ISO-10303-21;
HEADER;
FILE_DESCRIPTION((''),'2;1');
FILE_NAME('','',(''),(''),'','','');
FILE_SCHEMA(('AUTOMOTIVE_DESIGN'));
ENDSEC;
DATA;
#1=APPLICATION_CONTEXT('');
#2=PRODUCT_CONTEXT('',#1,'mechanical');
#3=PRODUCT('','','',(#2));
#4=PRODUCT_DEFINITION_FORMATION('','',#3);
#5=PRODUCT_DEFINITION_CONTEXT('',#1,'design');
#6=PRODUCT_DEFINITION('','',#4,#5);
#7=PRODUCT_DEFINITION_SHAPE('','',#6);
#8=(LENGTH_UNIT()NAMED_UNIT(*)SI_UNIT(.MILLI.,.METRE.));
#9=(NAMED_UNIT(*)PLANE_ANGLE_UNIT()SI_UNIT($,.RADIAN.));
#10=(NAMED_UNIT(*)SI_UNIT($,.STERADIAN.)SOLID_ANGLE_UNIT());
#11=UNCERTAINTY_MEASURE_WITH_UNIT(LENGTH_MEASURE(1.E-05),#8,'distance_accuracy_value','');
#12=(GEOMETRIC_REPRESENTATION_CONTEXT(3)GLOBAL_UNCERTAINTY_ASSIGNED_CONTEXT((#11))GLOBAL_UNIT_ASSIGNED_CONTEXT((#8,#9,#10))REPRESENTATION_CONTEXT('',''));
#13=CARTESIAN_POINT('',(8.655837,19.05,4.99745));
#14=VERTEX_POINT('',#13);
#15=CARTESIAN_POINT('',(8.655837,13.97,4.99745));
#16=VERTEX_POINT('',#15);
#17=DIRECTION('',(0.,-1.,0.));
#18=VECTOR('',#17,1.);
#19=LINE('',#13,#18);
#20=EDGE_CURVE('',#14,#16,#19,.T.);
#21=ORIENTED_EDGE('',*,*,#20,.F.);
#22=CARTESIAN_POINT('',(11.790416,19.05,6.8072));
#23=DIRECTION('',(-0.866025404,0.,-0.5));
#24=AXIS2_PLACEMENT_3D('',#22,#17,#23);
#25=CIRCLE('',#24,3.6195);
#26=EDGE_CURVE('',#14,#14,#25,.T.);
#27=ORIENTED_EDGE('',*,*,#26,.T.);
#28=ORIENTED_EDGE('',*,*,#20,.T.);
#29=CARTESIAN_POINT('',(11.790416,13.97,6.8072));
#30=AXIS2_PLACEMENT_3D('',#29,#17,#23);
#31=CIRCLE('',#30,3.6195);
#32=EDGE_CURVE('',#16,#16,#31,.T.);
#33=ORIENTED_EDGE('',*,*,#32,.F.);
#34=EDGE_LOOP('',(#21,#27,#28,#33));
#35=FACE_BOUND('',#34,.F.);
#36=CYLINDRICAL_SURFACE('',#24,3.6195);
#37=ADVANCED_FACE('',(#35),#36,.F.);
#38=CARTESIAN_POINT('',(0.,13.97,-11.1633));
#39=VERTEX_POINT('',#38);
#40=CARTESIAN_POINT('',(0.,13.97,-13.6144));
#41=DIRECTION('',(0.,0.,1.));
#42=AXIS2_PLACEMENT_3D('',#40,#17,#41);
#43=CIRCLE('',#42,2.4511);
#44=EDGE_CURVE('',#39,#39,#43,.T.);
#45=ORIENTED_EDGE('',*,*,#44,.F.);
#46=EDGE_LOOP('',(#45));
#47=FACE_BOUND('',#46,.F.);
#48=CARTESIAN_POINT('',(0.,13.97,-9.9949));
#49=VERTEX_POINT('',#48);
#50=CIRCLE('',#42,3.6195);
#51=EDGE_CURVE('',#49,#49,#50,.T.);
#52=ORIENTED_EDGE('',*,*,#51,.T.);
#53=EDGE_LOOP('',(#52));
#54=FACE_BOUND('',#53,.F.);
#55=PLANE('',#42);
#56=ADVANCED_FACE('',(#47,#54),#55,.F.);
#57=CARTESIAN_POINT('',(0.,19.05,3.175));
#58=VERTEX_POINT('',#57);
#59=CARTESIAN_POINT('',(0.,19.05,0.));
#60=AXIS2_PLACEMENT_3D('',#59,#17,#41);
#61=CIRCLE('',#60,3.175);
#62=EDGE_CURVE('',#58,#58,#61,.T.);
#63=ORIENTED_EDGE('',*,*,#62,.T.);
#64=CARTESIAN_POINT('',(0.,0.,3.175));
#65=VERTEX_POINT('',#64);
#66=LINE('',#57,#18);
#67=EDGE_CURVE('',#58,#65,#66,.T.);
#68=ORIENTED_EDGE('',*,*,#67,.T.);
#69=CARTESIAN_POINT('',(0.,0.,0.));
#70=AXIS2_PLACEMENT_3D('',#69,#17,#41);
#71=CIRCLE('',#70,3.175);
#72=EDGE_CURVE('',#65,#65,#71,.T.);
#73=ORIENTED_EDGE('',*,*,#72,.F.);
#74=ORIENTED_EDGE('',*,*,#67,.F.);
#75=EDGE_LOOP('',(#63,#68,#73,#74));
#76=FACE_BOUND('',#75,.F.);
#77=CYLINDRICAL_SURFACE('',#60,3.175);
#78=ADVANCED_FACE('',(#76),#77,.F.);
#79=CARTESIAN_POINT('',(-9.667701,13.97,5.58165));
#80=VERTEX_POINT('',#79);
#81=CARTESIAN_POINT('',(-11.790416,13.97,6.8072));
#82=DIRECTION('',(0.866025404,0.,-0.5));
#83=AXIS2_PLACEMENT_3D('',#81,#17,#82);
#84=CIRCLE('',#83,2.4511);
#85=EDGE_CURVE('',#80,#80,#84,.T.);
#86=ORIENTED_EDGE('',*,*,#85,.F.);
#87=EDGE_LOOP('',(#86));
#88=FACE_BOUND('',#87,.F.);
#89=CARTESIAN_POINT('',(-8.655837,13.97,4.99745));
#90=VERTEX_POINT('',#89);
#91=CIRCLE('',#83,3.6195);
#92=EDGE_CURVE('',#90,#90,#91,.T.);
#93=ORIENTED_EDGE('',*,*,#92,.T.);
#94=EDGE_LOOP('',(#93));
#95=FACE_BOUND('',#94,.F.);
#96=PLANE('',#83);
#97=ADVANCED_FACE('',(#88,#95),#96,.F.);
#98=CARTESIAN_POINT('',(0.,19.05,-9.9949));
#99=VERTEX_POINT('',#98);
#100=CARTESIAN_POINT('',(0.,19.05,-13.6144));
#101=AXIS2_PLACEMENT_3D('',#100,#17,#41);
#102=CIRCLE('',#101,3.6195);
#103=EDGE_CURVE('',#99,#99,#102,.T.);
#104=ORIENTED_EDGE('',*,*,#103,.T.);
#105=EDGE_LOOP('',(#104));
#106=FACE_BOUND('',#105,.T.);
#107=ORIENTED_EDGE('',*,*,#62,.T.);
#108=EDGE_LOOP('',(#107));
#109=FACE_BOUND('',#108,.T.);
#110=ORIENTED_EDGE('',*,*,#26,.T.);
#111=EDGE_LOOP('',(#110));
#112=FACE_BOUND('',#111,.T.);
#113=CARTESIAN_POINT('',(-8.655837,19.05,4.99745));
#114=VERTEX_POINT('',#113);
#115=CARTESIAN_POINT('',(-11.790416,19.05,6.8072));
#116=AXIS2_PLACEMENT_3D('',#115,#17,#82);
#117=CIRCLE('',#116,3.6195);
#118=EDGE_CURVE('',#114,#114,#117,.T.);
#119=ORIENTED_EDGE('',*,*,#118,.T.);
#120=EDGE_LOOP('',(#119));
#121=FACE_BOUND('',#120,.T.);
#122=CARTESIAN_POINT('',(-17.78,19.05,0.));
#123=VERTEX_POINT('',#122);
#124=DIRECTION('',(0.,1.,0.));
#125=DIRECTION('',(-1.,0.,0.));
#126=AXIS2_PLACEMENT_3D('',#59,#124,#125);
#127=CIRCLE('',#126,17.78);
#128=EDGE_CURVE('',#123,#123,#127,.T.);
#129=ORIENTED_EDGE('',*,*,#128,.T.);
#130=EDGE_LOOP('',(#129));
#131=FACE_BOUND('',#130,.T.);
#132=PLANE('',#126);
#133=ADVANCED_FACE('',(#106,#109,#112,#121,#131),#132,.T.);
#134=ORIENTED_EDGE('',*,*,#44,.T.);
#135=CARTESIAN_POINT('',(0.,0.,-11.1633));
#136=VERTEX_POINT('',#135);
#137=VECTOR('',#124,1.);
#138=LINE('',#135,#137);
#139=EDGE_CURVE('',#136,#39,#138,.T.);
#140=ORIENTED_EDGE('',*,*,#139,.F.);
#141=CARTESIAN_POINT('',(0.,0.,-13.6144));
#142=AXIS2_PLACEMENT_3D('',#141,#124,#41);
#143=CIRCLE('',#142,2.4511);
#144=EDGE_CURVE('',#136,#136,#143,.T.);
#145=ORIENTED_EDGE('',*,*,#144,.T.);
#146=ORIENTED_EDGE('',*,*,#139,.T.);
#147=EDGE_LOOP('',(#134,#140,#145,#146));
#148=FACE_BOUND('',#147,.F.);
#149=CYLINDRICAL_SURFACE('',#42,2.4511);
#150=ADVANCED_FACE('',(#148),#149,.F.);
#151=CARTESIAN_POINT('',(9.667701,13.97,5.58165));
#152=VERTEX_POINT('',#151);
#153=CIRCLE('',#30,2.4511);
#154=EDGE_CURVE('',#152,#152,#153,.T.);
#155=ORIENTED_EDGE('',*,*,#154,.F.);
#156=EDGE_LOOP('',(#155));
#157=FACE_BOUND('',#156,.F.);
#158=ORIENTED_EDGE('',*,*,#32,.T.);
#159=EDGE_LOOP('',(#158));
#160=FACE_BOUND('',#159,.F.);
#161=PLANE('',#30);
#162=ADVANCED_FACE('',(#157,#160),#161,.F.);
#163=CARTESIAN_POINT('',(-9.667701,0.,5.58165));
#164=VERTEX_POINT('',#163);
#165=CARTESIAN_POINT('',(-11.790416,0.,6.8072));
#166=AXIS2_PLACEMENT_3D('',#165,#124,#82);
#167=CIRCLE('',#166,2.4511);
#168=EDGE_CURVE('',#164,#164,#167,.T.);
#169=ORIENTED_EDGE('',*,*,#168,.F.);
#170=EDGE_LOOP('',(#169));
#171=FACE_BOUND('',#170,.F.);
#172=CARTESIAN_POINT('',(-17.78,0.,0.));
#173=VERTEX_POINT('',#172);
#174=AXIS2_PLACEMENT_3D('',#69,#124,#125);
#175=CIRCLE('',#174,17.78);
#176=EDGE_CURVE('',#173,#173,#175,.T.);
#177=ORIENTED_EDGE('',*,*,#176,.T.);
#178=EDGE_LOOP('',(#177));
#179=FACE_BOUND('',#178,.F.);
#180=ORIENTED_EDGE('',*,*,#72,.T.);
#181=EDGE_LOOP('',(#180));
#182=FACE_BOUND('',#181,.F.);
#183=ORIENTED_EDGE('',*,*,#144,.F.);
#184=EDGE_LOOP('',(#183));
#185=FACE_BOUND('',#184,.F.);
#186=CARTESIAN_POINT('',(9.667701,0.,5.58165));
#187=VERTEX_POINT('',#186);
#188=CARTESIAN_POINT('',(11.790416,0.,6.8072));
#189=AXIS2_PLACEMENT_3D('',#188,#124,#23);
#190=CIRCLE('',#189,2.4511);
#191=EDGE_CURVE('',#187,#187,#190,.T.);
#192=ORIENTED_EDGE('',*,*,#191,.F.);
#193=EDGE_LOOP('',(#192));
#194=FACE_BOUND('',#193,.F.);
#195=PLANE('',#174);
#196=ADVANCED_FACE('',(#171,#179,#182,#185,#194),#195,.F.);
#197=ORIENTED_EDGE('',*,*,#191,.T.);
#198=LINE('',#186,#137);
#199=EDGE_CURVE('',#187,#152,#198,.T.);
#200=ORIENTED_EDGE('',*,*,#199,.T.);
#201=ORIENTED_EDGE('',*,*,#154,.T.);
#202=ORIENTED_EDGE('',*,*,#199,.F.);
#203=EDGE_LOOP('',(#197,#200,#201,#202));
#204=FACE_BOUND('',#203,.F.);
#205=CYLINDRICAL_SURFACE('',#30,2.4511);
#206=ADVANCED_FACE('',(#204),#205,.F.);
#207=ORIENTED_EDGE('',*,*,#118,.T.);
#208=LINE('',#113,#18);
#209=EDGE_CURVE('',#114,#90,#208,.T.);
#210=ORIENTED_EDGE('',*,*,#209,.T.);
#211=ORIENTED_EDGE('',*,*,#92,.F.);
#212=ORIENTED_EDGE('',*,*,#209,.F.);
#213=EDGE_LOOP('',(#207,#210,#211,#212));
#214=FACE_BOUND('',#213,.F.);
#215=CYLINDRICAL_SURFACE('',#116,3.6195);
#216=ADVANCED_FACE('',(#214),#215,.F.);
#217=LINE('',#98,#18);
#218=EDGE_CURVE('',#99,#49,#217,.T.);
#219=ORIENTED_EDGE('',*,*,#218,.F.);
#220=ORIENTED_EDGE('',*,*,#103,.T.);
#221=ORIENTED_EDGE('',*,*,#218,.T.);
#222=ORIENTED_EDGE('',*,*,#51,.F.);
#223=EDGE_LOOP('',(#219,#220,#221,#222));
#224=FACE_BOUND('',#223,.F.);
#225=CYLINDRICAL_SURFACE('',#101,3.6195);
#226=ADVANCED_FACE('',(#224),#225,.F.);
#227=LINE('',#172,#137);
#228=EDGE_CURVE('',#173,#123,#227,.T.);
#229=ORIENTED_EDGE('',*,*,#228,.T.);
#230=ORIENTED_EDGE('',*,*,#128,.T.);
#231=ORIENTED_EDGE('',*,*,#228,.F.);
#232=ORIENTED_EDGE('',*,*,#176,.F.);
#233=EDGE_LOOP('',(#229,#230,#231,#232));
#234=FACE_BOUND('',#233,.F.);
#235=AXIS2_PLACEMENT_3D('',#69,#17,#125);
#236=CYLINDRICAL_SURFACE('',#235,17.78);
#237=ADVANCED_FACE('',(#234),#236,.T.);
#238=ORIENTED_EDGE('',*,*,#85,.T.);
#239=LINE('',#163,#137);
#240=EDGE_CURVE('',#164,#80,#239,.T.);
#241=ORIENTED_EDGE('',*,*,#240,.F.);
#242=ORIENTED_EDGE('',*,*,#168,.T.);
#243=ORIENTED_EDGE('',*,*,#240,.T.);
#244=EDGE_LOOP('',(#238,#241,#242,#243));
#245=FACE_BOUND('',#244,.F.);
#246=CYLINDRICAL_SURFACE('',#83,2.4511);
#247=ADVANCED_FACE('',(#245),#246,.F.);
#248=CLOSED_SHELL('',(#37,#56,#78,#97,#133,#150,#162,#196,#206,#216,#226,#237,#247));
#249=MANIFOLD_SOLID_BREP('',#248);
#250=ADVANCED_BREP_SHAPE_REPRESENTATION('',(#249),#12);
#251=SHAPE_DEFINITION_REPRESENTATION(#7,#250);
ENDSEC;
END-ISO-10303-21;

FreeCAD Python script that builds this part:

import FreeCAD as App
import Part
import Sketcher
from FreeCAD import Vector
Q = App.Units.Quantity

doc = App.newDocument("Part")
body = doc.addObject("PartDesign::Body", "Body")

sketch1 = body.newObject("Sketcher::SketchObject", "Sketch")
sketch1.AttachmentSupport = (doc.getObject("XZ_Plane"), [""])
sketch1.MapMode = "FlatFace"
sketch1.addGeometry(Part.Circle(Vector(0, 0, 0), Vector(0, 0, 1), 18), False)
sketch1.addConstraint([
    Sketcher.Constraint("Coincident", 0, 3, -1, 1),
    Sketcher.Constraint("Diameter", 0, Q("1.4 in")),
])
pad1 = body.newObject("PartDesign::Pad", "Pad")
pad1.Profile = sketch1
pad1.Length = Q("0.75 in")
pad1.Reversed = True

sketch2 = body.newObject("Sketcher::SketchObject", "Sketch001")
sketch2.AttachmentSupport = (doc.getObject("XZ_Plane"), [""])
sketch2.MapMode = "FlatFace"
sketch2.AttachmentOffset = App.Placement(Vector(0, 0, -0.75 * 25.4), App.Rotation())
sketch2.addGeometry(Part.Circle(Vector(0, -13.6, 0), Vector(0, 0, 1), 2.5), False)
sketch2.addConstraint([
    Sketcher.Constraint("PointOnObject", 0, 3, -2),
    Sketcher.Constraint("Diameter", 0, Q("0.193 in")),
    Sketcher.Constraint("DistanceY", 0, 3, -1, 1, Q("0.536 in")),
])
doc.recompute()
hole = body.newObject("PartDesign::Hole", "Hole")
hole.Profile = sketch2
hole.ThreadType = "None"
hole.Diameter = Q("0.193 in")
hole.DepthType = "ThroughAll"
hole.HoleCutType = "Counterbore"
hole.HoleCutDiameter = Q("0.285 in")
hole.HoleCutDepth = Q("0.2 in")
hole.Reversed = True

sketch3 = body.newObject("Sketcher::SketchObject", "Sketch002")
sketch3.AttachmentSupport = (doc.getObject("XZ_Plane"), [""])
sketch3.MapMode = "FlatFace"
sketch3.addGeometry(Part.Circle(Vector(0, -13.6, 0), Vector(0, 0, 1), 2.5), False)
sketch3.addConstraint([
    Sketcher.Constraint("PointOnObject", 0, 3, -2),
    Sketcher.Constraint("Diameter", 0, Q("0.193 in")),
    Sketcher.Constraint("DistanceY", 0, 3, -1, 1, Q("0.536 in")),
])
doc.recompute()
hole2 = body.newObject("PartDesign::Hole", "Hole001")
hole2.Profile = sketch3
hole2.ThreadType = "None"
hole2.Diameter = Q("0.193 in")
hole2.DepthType = "Dimension"
hole2.Depth = Q("0.25 in")
hole2.DrillPoint = "Flat"
doc.recompute()

polarpattern = body.newObject("PartDesign::PolarPattern", "PolarPattern")
polarpattern.Originals = [hole, hole2]
polarpattern.Axis = (doc.getObject("Y_Axis"), [""])
polarpattern.Angle = 360
polarpattern.Occurrences = 3
body.Tip = polarpattern

sketch4 = body.newObject("Sketcher::SketchObject", "Sketch003")
sketch4.AttachmentSupport = (doc.getObject("XZ_Plane"), [""])
sketch4.MapMode = "FlatFace"
sketch4.AttachmentOffset = App.Placement(Vector(0, 0, -0.75 * 25.4), App.Rotation())
sketch4.addGeometry(Part.Circle(Vector(0, 0, 0), Vector(0, 0, 1), 3.2), False)
sketch4.addConstraint([
    Sketcher.Constraint("Coincident", 0, 3, -1, 1),
    Sketcher.Constraint("Diameter", 0, Q("0.25 in")),
])
doc.recompute()
hole3 = body.newObject("PartDesign::Hole", "Hole002")
hole3.Profile = sketch4
hole3.ThreadType = "None"
hole3.Diameter = Q("0.25 in")
hole3.DepthType = "ThroughAll"
hole3.Reversed = True

doc.recompute()
